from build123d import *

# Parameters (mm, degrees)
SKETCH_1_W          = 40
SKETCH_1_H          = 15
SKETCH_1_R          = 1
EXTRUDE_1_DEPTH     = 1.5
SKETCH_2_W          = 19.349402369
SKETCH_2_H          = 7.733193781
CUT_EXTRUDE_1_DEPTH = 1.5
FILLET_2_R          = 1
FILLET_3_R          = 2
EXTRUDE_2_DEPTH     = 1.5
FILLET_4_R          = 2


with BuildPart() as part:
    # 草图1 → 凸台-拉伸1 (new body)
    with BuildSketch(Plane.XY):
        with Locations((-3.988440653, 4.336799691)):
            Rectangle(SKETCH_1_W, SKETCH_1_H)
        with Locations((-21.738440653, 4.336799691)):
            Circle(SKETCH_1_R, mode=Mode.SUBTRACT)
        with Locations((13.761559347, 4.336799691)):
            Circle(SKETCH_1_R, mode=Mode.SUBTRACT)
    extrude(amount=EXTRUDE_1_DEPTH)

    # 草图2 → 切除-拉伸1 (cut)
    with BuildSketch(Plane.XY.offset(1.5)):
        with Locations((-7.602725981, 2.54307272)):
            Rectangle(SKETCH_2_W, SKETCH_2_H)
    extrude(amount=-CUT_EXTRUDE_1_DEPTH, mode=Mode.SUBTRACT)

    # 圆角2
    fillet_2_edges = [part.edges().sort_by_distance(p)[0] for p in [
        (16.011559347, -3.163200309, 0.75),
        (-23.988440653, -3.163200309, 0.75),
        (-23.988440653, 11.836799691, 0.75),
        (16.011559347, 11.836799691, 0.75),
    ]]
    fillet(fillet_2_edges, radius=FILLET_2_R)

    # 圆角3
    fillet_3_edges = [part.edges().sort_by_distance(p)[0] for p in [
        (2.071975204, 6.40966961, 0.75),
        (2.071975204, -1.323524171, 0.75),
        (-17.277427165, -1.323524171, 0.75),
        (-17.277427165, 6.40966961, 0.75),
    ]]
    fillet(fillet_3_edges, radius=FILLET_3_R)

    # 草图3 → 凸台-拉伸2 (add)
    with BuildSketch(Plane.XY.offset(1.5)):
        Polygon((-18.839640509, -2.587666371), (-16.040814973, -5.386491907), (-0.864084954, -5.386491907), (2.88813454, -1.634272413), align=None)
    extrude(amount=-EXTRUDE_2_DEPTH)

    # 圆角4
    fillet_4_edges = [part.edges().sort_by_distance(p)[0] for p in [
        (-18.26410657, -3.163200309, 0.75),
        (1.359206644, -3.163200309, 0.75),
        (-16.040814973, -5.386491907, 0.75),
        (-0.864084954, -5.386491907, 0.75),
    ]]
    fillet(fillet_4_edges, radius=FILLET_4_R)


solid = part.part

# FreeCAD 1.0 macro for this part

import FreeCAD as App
import Part
import Sketcher
from FreeCAD import Vector
Q = App.Units.Quantity


def edges_at(feature, points):
    """Names of the edges that pass closest to the given points."""
    edges = feature.Shape.Edges
    near = lambda p: min(range(len(edges)), key=lambda i: edges[i].distToShape(Part.Vertex(*p))[0])
    return sorted({f"Edge{near(p) + 1}" for p in points})


def add_polygon(sketch, points):
    """Adds a closed chain of lines whose ends are joined by coincident constraints."""
    first, n = sketch.GeometryCount, len(points)
    for a, b in zip(points, points[1:] + points[:1]):
        sketch.addGeometry(Part.LineSegment(App.Vector(*a, 0), App.Vector(*b, 0)), False)
    for i in range(n):
        sketch.addConstraint(Sketcher.Constraint("Coincident", first + i, 2, first + (i + 1) % n, 1))

doc = App.newDocument("Part")
params = doc.addObject("Spreadsheet::Sheet", "Params")
for row, (alias, value) in enumerate([
    ("sketch1_diameter", "2 mm"),
    ("sketch1_width", "40 mm"),
    ("sketch1_height", "15 mm"),
    ("pad1_length", "1.5 mm"),
    ("pocket1_length", "1.5 mm"),
    ("fillet_radius", "1 mm"),
    ("fillet2_radius", "2 mm"),
    ("pad2_length", "1.5 mm"),
    ("fillet3_radius", "2 mm"),
], start=1):
    params.set(f"A{row}", alias)
    params.set(f"B{row}", "=" + value)
    params.setAlias(f"B{row}", alias)

body = doc.addObject("PartDesign::Body", "Body")

# Sketch on XY plane
sketch1 = body.newObject("Sketcher::SketchObject", "Sketch")
sketch1.AttachmentSupport = (doc.getObject("XY_Plane"), [""])
sketch1.MapMode = "FlatFace"
add_polygon(sketch1, [(-24, 11.8), (-24, -3.2), (16, -3.2), (16, 11.8)])  # lines 0-3
sketch1.addGeometry(Part.Circle(Vector(-21.7, 4.3, 0), Vector(0, 0, 1), 1), False)  # 4
sketch1.addGeometry(Part.Circle(Vector(13.8, 4.3, 0), Vector(0, 0, 1), 1), False)  # 5
sketch1.addConstraint([
    Sketcher.Constraint("Vertical", 0),
    Sketcher.Constraint("Horizontal", 1),
    Sketcher.Constraint("Vertical", 2),
    Sketcher.Constraint("Horizontal", 3),
    Sketcher.Constraint("Equal", 4, 5),
    Sketcher.Constraint("Horizontal", 4, 3, 5, 3),
    Sketcher.Constraint("Diameter", 4, Q("2 mm")),
    Sketcher.Constraint("DistanceX", 1, 1, 1, 2, Q("40 mm")),
    Sketcher.Constraint("DistanceY", 0, 2, 0, 1, Q("15 mm")),
    Sketcher.Constraint("DistanceX", 4, 3, 5, 3, Q("35.5 mm")),
    Sketcher.Constraint("DistanceY", 0, 2, 4, 3, Q("7.5 mm")),
    Sketcher.Constraint("DistanceX", 0, 2, 4, 3, Q("2.25 mm")),
    Sketcher.Constraint("DistanceY", -1, 1, 4, 3, Q("4.3368 mm")),
    Sketcher.Constraint("DistanceX", 4, 3, -1, 1, Q("21.738441 mm")),
])
sketch1.setExpression("Constraints[10]", "Params.sketch1_diameter")
sketch1.setExpression("Constraints[11]", "Params.sketch1_width")
sketch1.setExpression("Constraints[12]", "Params.sketch1_height")
pad1 = body.newObject("PartDesign::Pad", "Pad")
pad1.Profile = sketch1
pad1.setExpression("Length", "Params.pad1_length")

# Sketch on XY plane
sketch2 = body.newObject("Sketcher::SketchObject", "Sketch001")
sketch2.AttachmentSupport = (doc.getObject("XY_Plane"), [""])
sketch2.MapMode = "FlatFace"
sketch2.AttachmentOffset = App.Placement(Vector(0, 0, 1.5), App.Rotation())
add_polygon(sketch2, [(-17, 6), (-17, -1), (2, -1), (2, 6)])  # lines 0-3
sketch2.addConstraint([
    Sketcher.Constraint("Vertical", 0),
    Sketcher.Constraint("Horizontal", 1),
    Sketcher.Constraint("Vertical", 2),
    Sketcher.Constraint("Horizontal", 3),
    Sketcher.Constraint("DistanceX", 1, 1, 1, 2, Q("19.349402 mm")),
    Sketcher.Constraint("DistanceY", 0, 2, 0, 1, Q("7.733194 mm")),
    Sketcher.Constraint("DistanceY", -1, 1, 2, 2, Q("6.40967 mm")),
    Sketcher.Constraint("DistanceX", 0, 2, -1, 1, Q("17.277427 mm")),
])
pocket1 = body.newObject("PartDesign::Pocket", "Pocket")
pocket1.Profile = sketch2
pocket1.setExpression("Length", "Params.pocket1_length")
doc.recompute()

fillet = body.newObject("PartDesign::Fillet", "Fillet")
fillet.Base = (pocket1, edges_at(pocket1, [
    (16.012, -3.163, 0.75),
    (-23.988, -3.163, 0.75),
    (-23.988, 11.837, 0.75),
    (16.012, 11.837, 0.75),
]))
fillet.setExpression("Radius", "Params.fillet_radius")
doc.recompute()

fillet2 = body.newObject("PartDesign::Fillet", "Fillet001")
fillet2.Base = (fillet, edges_at(fillet, [
    (2.072, 6.41, 0.75),
    (2.072, -1.324, 0.75),
    (-17.277, -1.324, 0.75),
    (-17.277, 6.41, 0.75),
]))
fillet2.setExpression("Radius", "Params.fillet2_radius")

# Sketch on XY plane
sketch3 = body.newObject("Sketcher::SketchObject", "Sketch002")
sketch3.AttachmentSupport = (doc.getObject("XY_Plane"), [""])
sketch3.MapMode = "FlatFace"
sketch3.AttachmentOffset = App.Placement(Vector(0, 0, 1.5), App.Rotation())
add_polygon(sketch3, [(-18.8, -2.6), (-16, -5.4), (-0.9, -5.4), (2.9, -1.6)])  # lines 0-3
sketch3.addConstraint([
    Sketcher.Constraint("Horizontal", 1),
    Sketcher.Constraint("Perpendicular", 0, 2),
    Sketcher.Constraint("Angle", 0, Q("-45 deg")),
    Sketcher.Constraint("DistanceX", 1, 1, 1, 2, Q("15.17673 mm")),
    Sketcher.Constraint("Distance", 2, Q("5.30644 mm")),
    Sketcher.Constraint("Distance", 3, Q("21.748682 mm")),
    Sketcher.Constraint("DistanceY", 0, 2, -1, 1, Q("5.386492 mm")),
    Sketcher.Constraint("DistanceX", 3, 2, -1, 1, Q("18.839641 mm")),
])
pad2 = body.newObject("PartDesign::Pad", "Pad001")
pad2.Profile = sketch3
pad2.setExpression("Length", "Params.pad2_length")
pad2.Reversed = True
doc.recompute()

fillet3 = body.newObject("PartDesign::Fillet", "Fillet002")
fillet3.Base = (pad2, edges_at(pad2, [
    (-18.264, -3.163, 0.75),
    (1.359, -3.163, 0.75),
    (-16.041, -5.386, 0.75),
    (-0.864, -5.386, 0.75),
]))
fillet3.setExpression("Radius", "Params.fillet3_radius")

doc.recompute()
